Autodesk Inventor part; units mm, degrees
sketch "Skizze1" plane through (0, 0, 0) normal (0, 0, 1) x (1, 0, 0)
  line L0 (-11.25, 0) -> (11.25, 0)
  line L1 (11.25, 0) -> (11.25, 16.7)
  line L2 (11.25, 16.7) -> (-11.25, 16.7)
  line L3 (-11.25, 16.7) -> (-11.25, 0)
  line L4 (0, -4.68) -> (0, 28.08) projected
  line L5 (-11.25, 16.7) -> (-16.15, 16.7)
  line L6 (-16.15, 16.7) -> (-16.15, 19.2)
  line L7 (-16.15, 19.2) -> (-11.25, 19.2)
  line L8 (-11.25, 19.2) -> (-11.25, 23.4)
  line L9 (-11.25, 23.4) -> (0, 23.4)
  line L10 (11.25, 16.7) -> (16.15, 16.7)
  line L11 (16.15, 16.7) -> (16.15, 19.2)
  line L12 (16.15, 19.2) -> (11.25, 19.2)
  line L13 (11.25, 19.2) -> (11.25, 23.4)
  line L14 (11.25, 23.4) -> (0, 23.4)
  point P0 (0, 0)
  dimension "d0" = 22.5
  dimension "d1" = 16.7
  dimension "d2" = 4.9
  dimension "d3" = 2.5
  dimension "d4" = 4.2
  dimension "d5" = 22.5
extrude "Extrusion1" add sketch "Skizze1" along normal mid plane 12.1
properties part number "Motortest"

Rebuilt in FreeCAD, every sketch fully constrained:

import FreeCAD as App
import Part
import Sketcher
from FreeCAD import Vector

doc = App.newDocument("Part")
body = doc.addObject("PartDesign::Body", "Body")

# Sketch on XY plane
sketch1 = doc.addObject("Sketcher::SketchObject", "Sketch")
body.addObject(sketch1)
sketch1.AttachmentSupport = (doc.XY_Plane, [""])
sketch1.MapMode = "FlatFace"
sketch1.addGeometry([
    Part.LineSegment(Vector(-11.2, 16.7, 0), Vector(-11.2, 0, 0)),  # 0
    Part.LineSegment(Vector(-11.2, 0, 0), Vector(11.2, 0, 0)),  # 1
    Part.LineSegment(Vector(11.2, 0, 0), Vector(11.2, 16.7, 0)),  # 2
    Part.LineSegment(Vector(11.2, 16.7, 0), Vector(16.1, 16.7, 0)),  # 3
    Part.LineSegment(Vector(16.1, 16.7, 0), Vector(16.1, 19.2, 0)),  # 4
    Part.LineSegment(Vector(16.1, 19.2, 0), Vector(11.2, 19.2, 0)),  # 5
    Part.LineSegment(Vector(11.2, 19.2, 0), Vector(11.2, 23.4, 0)),  # 6
    Part.LineSegment(Vector(11.2, 23.4, 0), Vector(-11.2, 23.4, 0)),  # 7
    Part.LineSegment(Vector(-11.2, 23.4, 0), Vector(-11.2, 19.2, 0)),  # 8
    Part.LineSegment(Vector(-11.2, 19.2, 0), Vector(-16.1, 19.2, 0)),  # 9
    Part.LineSegment(Vector(-16.1, 19.2, 0), Vector(-16.1, 16.7, 0)),  # 10
    Part.LineSegment(Vector(-16.1, 16.7, 0), Vector(-11.2, 16.7, 0)),  # 11
], False)
sketch1.addConstraint([
    Sketcher.Constraint("Coincident", 0, 2, 1, 1),
    Sketcher.Constraint("Coincident", 1, 2, 2, 1),
    Sketcher.Constraint("Coincident", 2, 2, 3, 1),
    Sketcher.Constraint("Coincident", 3, 2, 4, 1),
    Sketcher.Constraint("Coincident", 4, 2, 5, 1),
    Sketcher.Constraint("Coincident", 5, 2, 6, 1),
    Sketcher.Constraint("Coincident", 6, 2, 7, 1),
    Sketcher.Constraint("Coincident", 7, 2, 8, 1),
    Sketcher.Constraint("Coincident", 8, 2, 9, 1),
    Sketcher.Constraint("Coincident", 9, 2, 10, 1),
    Sketcher.Constraint("Coincident", 10, 2, 11, 1),
    Sketcher.Constraint("Coincident", 11, 2, 0, 1),
    Sketcher.Constraint("Vertical", 0),
    Sketcher.Constraint("Horizontal", 1),
    Sketcher.Constraint("Vertical", 2),
    Sketcher.Constraint("Horizontal", 3),
    Sketcher.Constraint("Vertical", 4),
    Sketcher.Constraint("Horizontal", 5),
    Sketcher.Constraint("Vertical", 6),
    Sketcher.Constraint("Horizontal", 7),
    Sketcher.Constraint("Vertical", 8),
    Sketcher.Constraint("Horizontal", 9),
    Sketcher.Constraint("Vertical", 10),
    Sketcher.Constraint("Horizontal", 11),
    Sketcher.Constraint("Symmetric", 0, 2, 1, 2, -1, 1),
    Sketcher.Constraint("Symmetric", 5, 2, 8, 2, -2),
    Sketcher.Constraint("Symmetric", 3, 2, 10, 2, -2),
    Sketcher.Constraint("Vertical", 2, 2, 5, 2),
    Sketcher.Constraint("DistanceX", 1, 1, 1, 2, 22.5),
    Sketcher.Constraint("DistanceX", 3, 1, 3, 2, 4.9),
    Sketcher.Constraint("DistanceY", 0, 2, 0, 1, 16.7),
    Sketcher.Constraint("DistanceY", 4, 1, 4, 2, 2.5),
    Sketcher.Constraint("DistanceY", 6, 1, 6, 2, 4.2),
])
pad1 = doc.addObject("PartDesign::Pad", "Pad")
body.addObject(pad1)
pad1.Profile = sketch1
pad1.Length = 12.1
pad1.Midplane = True

doc.recompute()
